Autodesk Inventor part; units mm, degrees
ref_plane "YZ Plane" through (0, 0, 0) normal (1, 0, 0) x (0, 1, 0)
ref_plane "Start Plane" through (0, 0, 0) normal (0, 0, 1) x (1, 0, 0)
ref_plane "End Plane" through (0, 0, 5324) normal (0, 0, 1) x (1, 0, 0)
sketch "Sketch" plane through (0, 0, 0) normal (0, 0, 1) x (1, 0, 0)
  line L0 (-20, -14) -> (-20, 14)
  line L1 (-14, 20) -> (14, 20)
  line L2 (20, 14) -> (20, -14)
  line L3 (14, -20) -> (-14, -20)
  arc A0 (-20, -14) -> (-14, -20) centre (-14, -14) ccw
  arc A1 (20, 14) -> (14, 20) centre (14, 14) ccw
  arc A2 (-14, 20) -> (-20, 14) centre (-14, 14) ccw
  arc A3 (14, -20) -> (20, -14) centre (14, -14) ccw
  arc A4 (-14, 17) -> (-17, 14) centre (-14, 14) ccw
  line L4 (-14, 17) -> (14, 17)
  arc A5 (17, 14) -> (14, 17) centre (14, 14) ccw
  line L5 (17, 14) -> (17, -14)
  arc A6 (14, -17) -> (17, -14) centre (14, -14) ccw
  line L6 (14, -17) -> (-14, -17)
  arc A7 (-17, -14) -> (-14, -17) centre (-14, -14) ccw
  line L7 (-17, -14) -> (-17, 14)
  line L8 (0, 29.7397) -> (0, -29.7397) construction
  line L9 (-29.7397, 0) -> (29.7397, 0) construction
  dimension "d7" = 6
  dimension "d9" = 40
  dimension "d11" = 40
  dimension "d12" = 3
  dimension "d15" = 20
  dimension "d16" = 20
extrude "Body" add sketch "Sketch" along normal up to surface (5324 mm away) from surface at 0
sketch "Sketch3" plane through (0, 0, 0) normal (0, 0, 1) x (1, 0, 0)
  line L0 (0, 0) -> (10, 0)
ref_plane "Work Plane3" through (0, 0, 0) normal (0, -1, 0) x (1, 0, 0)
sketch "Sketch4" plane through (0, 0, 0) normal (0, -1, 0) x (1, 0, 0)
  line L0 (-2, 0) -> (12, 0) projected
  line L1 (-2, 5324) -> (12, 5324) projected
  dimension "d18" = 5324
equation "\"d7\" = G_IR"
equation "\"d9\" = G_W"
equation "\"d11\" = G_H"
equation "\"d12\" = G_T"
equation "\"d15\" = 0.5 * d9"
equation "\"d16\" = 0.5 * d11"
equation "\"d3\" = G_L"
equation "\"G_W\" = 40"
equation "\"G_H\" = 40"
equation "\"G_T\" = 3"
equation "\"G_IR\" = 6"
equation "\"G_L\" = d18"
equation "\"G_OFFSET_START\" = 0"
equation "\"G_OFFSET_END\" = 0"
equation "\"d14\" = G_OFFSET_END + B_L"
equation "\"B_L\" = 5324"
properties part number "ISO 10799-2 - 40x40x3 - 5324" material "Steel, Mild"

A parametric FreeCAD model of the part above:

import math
import FreeCAD as App
import Part
import Sketcher
from FreeCAD import Vector

doc = App.newDocument("Part")
body = doc.addObject("PartDesign::Body", "Body")

# Sketch on XY plane
sketch1 = doc.addObject("Sketcher::SketchObject", "Sketch")
body.addObject(sketch1)
sketch1.AttachmentSupport = (doc.XY_Plane, [""])
sketch1.MapMode = "FlatFace"
sketch1.addGeometry([
    Part.LineSegment(Vector(-20, 14, 0), Vector(-20, -14, 0)),  # 0
    Part.ArcOfCircle(Part.Circle(Vector(-14, -14, 0), Vector(0, 0, 1), 6), math.radians(180), math.radians(270)),  # 1
    Part.LineSegment(Vector(-14, -20, 0), Vector(14, -20, 0)),  # 2
    Part.ArcOfCircle(Part.Circle(Vector(14, -14, 0), Vector(0, 0, 1), 6), math.radians(-90), math.radians(0)),  # 3
    Part.LineSegment(Vector(20, -14, 0), Vector(20, 14, 0)),  # 4
    Part.ArcOfCircle(Part.Circle(Vector(14, 14, 0), Vector(0, 0, 1), 6), math.radians(0), math.radians(90)),  # 5
    Part.LineSegment(Vector(14, 20, 0), Vector(-14, 20, 0)),  # 6
    Part.ArcOfCircle(Part.Circle(Vector(-14, 14, 0), Vector(0, 0, 1), 6), math.radians(90), math.radians(180)),  # 7
    Part.ArcOfCircle(Part.Circle(Vector(-14, 14, 0), Vector(0, 0, 1), 3), math.radians(90), math.radians(180)),  # 8
    Part.LineSegment(Vector(-14, 17, 0), Vector(14, 17, 0)),  # 9
    Part.ArcOfCircle(Part.Circle(Vector(14, 14, 0), Vector(0, 0, 1), 3), math.radians(0), math.radians(90)),  # 10
    Part.LineSegment(Vector(17, 14, 0), Vector(17, -14, 0)),  # 11
    Part.ArcOfCircle(Part.Circle(Vector(14, -14, 0), Vector(0, 0, 1), 3), math.radians(-90), math.radians(0)),  # 12
    Part.LineSegment(Vector(14, -17, 0), Vector(-14, -17, 0)),  # 13
    Part.ArcOfCircle(Part.Circle(Vector(-14, -14, 0), Vector(0, 0, 1), 3), math.radians(180), math.radians(270)),  # 14
    Part.LineSegment(Vector(-17, -14, 0), Vector(-17, 14, 0)),  # 15
], False)
sketch1.addConstraint([
    Sketcher.Constraint("Tangent", 0, 2, 1, 1),
    Sketcher.Constraint("Tangent", 1, 2, 2, 1),
    Sketcher.Constraint("Tangent", 2, 2, 3, 1),
    Sketcher.Constraint("Tangent", 3, 2, 4, 1),
    Sketcher.Constraint("Tangent", 4, 2, 5, 1),
    Sketcher.Constraint("Tangent", 5, 2, 6, 1),
    Sketcher.Constraint("Tangent", 6, 2, 7, 1),
    Sketcher.Constraint("Tangent", 7, 2, 0, 1),
    Sketcher.Constraint("Tangent", 8, 1, 9, 1),
    Sketcher.Constraint("Tangent", 9, 2, 10, 2),
    Sketcher.Constraint("Tangent", 10, 1, 11, 1),
    Sketcher.Constraint("Tangent", 11, 2, 12, 2),
    Sketcher.Constraint("Tangent", 12, 1, 13, 1),
    Sketcher.Constraint("Tangent", 13, 2, 14, 2),
    Sketcher.Constraint("Tangent", 14, 1, 15, 1),
    Sketcher.Constraint("Tangent", 15, 2, 8, 2),
    Sketcher.Constraint("Vertical", 0),
    Sketcher.Constraint("Horizontal", 2),
    Sketcher.Constraint("Vertical", 4),
    Sketcher.Constraint("Horizontal", 6),
    Sketcher.Constraint("Horizontal", 9),
    Sketcher.Constraint("Vertical", 11),
    Sketcher.Constraint("Horizontal", 13),
    Sketcher.Constraint("Vertical", 15),
    Sketcher.Constraint("Coincident", 8, 3, 7, 3),
    Sketcher.Constraint("Coincident", 10, 3, 5, 3),
    Sketcher.Constraint("Coincident", 12, 3, 3, 3),
    Sketcher.Constraint("Equal", 1, 3),
    Sketcher.Constraint("Equal", 3, 5),
    Sketcher.Constraint("Equal", 5, 7),
    Sketcher.Constraint("Equal", 12, 14),
    Sketcher.Constraint("Symmetric", 1, 3, 5, 3, -1, 1),
    Sketcher.Constraint("Equal", 13, 0),
    Sketcher.Constraint("Radius", 1, 6.0),
    Sketcher.Constraint("Radius", 8, 3.0),
    Sketcher.Constraint("DistanceX", 0, 2, -1, 1, 20.0),
])
pad1 = doc.addObject("PartDesign::Pad", "Pad")
body.addObject(pad1)
pad1.Profile = sketch1
pad1.Length = 5324

doc.recompute()
